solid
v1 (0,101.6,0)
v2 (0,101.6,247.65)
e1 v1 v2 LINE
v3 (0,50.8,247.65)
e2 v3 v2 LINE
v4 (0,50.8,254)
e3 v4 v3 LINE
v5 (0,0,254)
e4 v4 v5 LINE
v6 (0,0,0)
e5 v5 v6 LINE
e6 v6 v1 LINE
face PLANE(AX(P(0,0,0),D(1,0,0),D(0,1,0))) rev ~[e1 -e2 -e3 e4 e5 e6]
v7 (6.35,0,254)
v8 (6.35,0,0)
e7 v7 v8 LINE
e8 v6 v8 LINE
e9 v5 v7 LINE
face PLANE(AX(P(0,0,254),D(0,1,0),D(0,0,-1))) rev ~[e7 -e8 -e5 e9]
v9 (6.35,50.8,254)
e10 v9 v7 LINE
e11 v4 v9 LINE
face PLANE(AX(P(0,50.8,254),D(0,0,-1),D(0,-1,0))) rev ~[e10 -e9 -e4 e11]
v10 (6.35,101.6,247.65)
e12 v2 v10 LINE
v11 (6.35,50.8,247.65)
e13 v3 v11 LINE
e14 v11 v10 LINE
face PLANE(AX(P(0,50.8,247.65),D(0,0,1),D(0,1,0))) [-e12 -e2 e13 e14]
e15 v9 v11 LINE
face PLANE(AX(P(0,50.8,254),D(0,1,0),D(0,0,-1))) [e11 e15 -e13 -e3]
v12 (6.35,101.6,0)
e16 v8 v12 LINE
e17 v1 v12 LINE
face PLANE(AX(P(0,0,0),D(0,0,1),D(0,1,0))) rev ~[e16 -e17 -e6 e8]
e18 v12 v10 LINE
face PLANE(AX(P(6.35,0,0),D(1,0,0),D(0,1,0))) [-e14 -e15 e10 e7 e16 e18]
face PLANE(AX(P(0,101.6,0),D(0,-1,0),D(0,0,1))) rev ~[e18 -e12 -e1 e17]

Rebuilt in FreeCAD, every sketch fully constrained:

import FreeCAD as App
import Part
import Sketcher
from FreeCAD import Vector
Q = App.Units.Quantity

doc = App.newDocument("Part")
body = doc.addObject("PartDesign::Body", "Body")

# Sketch on YZ plane
sketch1 = doc.addObject("Sketcher::SketchObject", "Sketch")
body.addObject(sketch1)
sketch1.AttachmentSupport = (doc.YZ_Plane, [""])
sketch1.MapMode = "FlatFace"
sketch1.addGeometry([
    Part.LineSegment(Vector(0, 254, 0), Vector(0, 0, 0)),  # 0
    Part.LineSegment(Vector(0, 0, 0), Vector(102, 0, 0)),  # 1
    Part.LineSegment(Vector(102, 0, 0), Vector(102, 248, 0)),  # 2
    Part.LineSegment(Vector(102, 248, 0), Vector(51, 248, 0)),  # 3
    Part.LineSegment(Vector(51, 248, 0), Vector(51, 254, 0)),  # 4
    Part.LineSegment(Vector(51, 254, 0), Vector(0, 254, 0)),  # 5
], False)
sketch1.addConstraint([
    Sketcher.Constraint("Coincident", 0, 2, 1, 1),
    Sketcher.Constraint("Coincident", 1, 2, 2, 1),
    Sketcher.Constraint("Coincident", 2, 2, 3, 1),
    Sketcher.Constraint("Coincident", 3, 2, 4, 1),
    Sketcher.Constraint("Coincident", 4, 2, 5, 1),
    Sketcher.Constraint("Coincident", 5, 2, 0, 1),
    Sketcher.Constraint("Vertical", 0),
    Sketcher.Constraint("Horizontal", 1),
    Sketcher.Constraint("Vertical", 2),
    Sketcher.Constraint("Horizontal", 3),
    Sketcher.Constraint("Vertical", 4),
    Sketcher.Constraint("Horizontal", 5),
    Sketcher.Constraint("Coincident", 0, 2, -1, 1),
    Sketcher.Constraint("Equal", 3, 5),
    Sketcher.Constraint("DistanceX", 1, 1, 1, 2, Q("4 in")),
    Sketcher.Constraint("DistanceY", 0, 2, 0, 1, Q("10 in")),
    Sketcher.Constraint("DistanceY", 4, 1, 4, 2, Q("0.25 in")),
])
pad1 = doc.addObject("PartDesign::Pad", "Pad")
body.addObject(pad1)
pad1.Profile = sketch1
pad1.Length = Q("0.25 in")

doc.recompute()
